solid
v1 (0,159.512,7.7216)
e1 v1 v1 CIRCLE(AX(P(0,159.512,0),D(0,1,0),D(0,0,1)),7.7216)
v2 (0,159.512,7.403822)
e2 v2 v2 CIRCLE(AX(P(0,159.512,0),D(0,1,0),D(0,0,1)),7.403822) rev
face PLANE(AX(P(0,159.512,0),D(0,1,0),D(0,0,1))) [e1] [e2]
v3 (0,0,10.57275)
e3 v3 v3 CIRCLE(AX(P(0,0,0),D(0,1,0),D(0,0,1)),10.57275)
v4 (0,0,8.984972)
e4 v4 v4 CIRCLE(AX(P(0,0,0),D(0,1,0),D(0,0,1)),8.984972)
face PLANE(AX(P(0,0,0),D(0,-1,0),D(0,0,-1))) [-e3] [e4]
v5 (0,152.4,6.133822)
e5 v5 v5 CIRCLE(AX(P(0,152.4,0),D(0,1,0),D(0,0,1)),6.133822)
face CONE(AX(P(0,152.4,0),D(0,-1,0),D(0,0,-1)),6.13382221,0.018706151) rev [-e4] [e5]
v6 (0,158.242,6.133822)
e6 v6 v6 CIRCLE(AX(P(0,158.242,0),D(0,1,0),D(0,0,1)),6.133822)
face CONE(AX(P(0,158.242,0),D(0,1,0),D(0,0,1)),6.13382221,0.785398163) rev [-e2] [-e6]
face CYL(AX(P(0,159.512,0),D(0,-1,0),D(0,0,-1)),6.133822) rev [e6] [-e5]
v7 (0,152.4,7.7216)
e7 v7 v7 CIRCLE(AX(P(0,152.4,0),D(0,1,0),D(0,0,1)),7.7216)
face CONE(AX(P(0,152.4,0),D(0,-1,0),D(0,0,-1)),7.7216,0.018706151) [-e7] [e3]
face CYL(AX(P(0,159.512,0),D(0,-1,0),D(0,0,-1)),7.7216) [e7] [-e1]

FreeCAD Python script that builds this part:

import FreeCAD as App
import Part
import Sketcher

V = App.Vector
Q = App.Units.Quantity


def edges_at(feature, points):
    """Names of the edges that pass closest to the given points."""
    edges = feature.Shape.Edges
    near = lambda p: min(range(len(edges)), key=lambda i: edges[i].distToShape(Part.Vertex(*p))[0])
    return sorted({f"Edge{near(p) + 1}" for p in points})

doc = App.newDocument("Part")
params = doc.addObject("Spreadsheet::Sheet", "Params")
for row, (alias, value) in enumerate([
    ("sketch1_width", "6 in"),
    ("sketch1_height", "0.304 in"),
    ("revolution_angle", "360 deg"),
    ("sketch2_width", "6 in"),
    ("groove_angle", "360 deg"),
    ("sketch3_diameter", "0.608 in"),
    ("pad1_length", "0.28 in"),
    ("chamfer_size", "0.05 in"),
], start=1):
    params.set(f"A{row}", alias)
    params.set(f"B{row}", "=" + value)
    params.setAlias(f"B{row}", alias)

body = doc.addObject("PartDesign::Body", "Body")

# Sketch on YZ plane
sketch1 = doc.addObject("Sketcher::SketchObject", "Sketch")
body.addObject(sketch1)
sketch1.AttachmentSupport = (doc.YZ_Plane, [""])
sketch1.MapMode = "FlatFace"
sketch1.addGeometry([
    Part.LineSegment(V(0, 0, 0), V(152, 0, 0)),
    Part.LineSegment(V(152, 0, 0), V(152, 8, 0)),
    Part.LineSegment(V(152, 8, 0), V(0, 11, 0)),
    Part.LineSegment(V(0, 11, 0), V(0, 0, 0)),
], False)
sketch1.addConstraint([
    Sketcher.Constraint("Coincident", 0, 2, 1, 1),
    Sketcher.Constraint("Coincident", 1, 2, 2, 1),
    Sketcher.Constraint("Coincident", 2, 2, 3, 1),
    Sketcher.Constraint("Coincident", 3, 2, 0, 1),
    Sketcher.Constraint("Horizontal", 0),
    Sketcher.Constraint("Vertical", 1),
    Sketcher.Constraint("Vertical", 3),
    Sketcher.Constraint("Coincident", 3, 2, -1, 1),
    Sketcher.Constraint("DistanceX", 0, 1, 0, 2, Q("6 in")),
    Sketcher.Constraint("DistanceY", 1, 1, 1, 2, Q("0.304 in")),
    Sketcher.Constraint("DistanceY", 3, 2, 3, 1, 10.57275),
])
sketch1.setExpression("Constraints[8]", "Params.sketch1_width")
sketch1.setExpression("Constraints[9]", "Params.sketch1_height")
revolution = doc.addObject("PartDesign::Revolution", "Revolution")
body.addObject(revolution)
revolution.Profile = sketch1
revolution.ReferenceAxis = (sketch1, ["H_Axis"])
revolution.setExpression("Angle", "Params.revolution_angle")

# Sketch on YZ plane
sketch2 = doc.addObject("Sketcher::SketchObject", "Sketch001")
body.addObject(sketch2)
sketch2.AttachmentSupport = (doc.YZ_Plane, [""])
sketch2.MapMode = "FlatFace"
sketch2.addGeometry([
    Part.LineSegment(V(0, 0, 0), V(152, 0, 0)),
    Part.LineSegment(V(152, 0, 0), V(152, 6, 0)),
    Part.LineSegment(V(152, 6, 0), V(0, 9, 0)),
    Part.LineSegment(V(0, 9, 0), V(0, 0, 0)),
], False)
sketch2.addConstraint([
    Sketcher.Constraint("Coincident", 0, 2, 1, 1),
    Sketcher.Constraint("Coincident", 1, 2, 2, 1),
    Sketcher.Constraint("Coincident", 2, 2, 3, 1),
    Sketcher.Constraint("Coincident", 3, 2, 0, 1),
    Sketcher.Constraint("Horizontal", 0),
    Sketcher.Constraint("Vertical", 1),
    Sketcher.Constraint("Vertical", 3),
    Sketcher.Constraint("Coincident", 3, 2, -1, 1),
    Sketcher.Constraint("DistanceX", 0, 1, 0, 2, Q("6 in")),
    Sketcher.Constraint("DistanceY", 1, 1, 1, 2, 6.133822),
    Sketcher.Constraint("DistanceY", 3, 2, 3, 1, 8.984972),
])
sketch2.setExpression("Constraints[8]", "Params.sketch2_width")
groove = doc.addObject("PartDesign::Groove", "Groove")
body.addObject(groove)
groove.Profile = sketch2
groove.ReferenceAxis = (sketch2, ["H_Axis"])
groove.setExpression("Angle", "Params.groove_angle")

# Sketch on XZ plane
sketch3 = doc.addObject("Sketcher::SketchObject", "Sketch002")
body.addObject(sketch3)
sketch3.AttachmentSupport = (doc.XZ_Plane, [""])
sketch3.MapMode = "FlatFace"
sketch3.AttachmentOffset = App.Placement(V(0, 0, -6 * 25.4), App.Rotation())
sketch3.addGeometry([
    Part.Circle(V(0, 0, 0), V(0, 0, 1), 8),
    Part.Circle(V(0, 0, 0), V(0, 0, 1), 6),
], False)
sketch3.addConstraint([
    Sketcher.Constraint("Coincident", 0, 3, -1, 1),
    Sketcher.Constraint("Coincident", 1, 3, -1, 1),
    Sketcher.Constraint("Diameter", 0, Q("0.608 in")),
    Sketcher.Constraint("Diameter", 1, 12.267644),
])
sketch3.setExpression("Constraints[2]", "Params.sketch3_diameter")
pad1 = doc.addObject("PartDesign::Pad", "Pad")
body.addObject(pad1)
pad1.Profile = sketch3
pad1.setExpression("Length", "Params.pad1_length")
pad1.Reversed = True
doc.recompute()

chamfer = doc.addObject("PartDesign::Chamfer", "Chamfer")
body.addObject(chamfer)
chamfer.Base = (pad1, edges_at(pad1, [(0, 159.512, -6.134)]))
chamfer.setExpression("Size", "Params.chamfer_size")

doc.recompute()
